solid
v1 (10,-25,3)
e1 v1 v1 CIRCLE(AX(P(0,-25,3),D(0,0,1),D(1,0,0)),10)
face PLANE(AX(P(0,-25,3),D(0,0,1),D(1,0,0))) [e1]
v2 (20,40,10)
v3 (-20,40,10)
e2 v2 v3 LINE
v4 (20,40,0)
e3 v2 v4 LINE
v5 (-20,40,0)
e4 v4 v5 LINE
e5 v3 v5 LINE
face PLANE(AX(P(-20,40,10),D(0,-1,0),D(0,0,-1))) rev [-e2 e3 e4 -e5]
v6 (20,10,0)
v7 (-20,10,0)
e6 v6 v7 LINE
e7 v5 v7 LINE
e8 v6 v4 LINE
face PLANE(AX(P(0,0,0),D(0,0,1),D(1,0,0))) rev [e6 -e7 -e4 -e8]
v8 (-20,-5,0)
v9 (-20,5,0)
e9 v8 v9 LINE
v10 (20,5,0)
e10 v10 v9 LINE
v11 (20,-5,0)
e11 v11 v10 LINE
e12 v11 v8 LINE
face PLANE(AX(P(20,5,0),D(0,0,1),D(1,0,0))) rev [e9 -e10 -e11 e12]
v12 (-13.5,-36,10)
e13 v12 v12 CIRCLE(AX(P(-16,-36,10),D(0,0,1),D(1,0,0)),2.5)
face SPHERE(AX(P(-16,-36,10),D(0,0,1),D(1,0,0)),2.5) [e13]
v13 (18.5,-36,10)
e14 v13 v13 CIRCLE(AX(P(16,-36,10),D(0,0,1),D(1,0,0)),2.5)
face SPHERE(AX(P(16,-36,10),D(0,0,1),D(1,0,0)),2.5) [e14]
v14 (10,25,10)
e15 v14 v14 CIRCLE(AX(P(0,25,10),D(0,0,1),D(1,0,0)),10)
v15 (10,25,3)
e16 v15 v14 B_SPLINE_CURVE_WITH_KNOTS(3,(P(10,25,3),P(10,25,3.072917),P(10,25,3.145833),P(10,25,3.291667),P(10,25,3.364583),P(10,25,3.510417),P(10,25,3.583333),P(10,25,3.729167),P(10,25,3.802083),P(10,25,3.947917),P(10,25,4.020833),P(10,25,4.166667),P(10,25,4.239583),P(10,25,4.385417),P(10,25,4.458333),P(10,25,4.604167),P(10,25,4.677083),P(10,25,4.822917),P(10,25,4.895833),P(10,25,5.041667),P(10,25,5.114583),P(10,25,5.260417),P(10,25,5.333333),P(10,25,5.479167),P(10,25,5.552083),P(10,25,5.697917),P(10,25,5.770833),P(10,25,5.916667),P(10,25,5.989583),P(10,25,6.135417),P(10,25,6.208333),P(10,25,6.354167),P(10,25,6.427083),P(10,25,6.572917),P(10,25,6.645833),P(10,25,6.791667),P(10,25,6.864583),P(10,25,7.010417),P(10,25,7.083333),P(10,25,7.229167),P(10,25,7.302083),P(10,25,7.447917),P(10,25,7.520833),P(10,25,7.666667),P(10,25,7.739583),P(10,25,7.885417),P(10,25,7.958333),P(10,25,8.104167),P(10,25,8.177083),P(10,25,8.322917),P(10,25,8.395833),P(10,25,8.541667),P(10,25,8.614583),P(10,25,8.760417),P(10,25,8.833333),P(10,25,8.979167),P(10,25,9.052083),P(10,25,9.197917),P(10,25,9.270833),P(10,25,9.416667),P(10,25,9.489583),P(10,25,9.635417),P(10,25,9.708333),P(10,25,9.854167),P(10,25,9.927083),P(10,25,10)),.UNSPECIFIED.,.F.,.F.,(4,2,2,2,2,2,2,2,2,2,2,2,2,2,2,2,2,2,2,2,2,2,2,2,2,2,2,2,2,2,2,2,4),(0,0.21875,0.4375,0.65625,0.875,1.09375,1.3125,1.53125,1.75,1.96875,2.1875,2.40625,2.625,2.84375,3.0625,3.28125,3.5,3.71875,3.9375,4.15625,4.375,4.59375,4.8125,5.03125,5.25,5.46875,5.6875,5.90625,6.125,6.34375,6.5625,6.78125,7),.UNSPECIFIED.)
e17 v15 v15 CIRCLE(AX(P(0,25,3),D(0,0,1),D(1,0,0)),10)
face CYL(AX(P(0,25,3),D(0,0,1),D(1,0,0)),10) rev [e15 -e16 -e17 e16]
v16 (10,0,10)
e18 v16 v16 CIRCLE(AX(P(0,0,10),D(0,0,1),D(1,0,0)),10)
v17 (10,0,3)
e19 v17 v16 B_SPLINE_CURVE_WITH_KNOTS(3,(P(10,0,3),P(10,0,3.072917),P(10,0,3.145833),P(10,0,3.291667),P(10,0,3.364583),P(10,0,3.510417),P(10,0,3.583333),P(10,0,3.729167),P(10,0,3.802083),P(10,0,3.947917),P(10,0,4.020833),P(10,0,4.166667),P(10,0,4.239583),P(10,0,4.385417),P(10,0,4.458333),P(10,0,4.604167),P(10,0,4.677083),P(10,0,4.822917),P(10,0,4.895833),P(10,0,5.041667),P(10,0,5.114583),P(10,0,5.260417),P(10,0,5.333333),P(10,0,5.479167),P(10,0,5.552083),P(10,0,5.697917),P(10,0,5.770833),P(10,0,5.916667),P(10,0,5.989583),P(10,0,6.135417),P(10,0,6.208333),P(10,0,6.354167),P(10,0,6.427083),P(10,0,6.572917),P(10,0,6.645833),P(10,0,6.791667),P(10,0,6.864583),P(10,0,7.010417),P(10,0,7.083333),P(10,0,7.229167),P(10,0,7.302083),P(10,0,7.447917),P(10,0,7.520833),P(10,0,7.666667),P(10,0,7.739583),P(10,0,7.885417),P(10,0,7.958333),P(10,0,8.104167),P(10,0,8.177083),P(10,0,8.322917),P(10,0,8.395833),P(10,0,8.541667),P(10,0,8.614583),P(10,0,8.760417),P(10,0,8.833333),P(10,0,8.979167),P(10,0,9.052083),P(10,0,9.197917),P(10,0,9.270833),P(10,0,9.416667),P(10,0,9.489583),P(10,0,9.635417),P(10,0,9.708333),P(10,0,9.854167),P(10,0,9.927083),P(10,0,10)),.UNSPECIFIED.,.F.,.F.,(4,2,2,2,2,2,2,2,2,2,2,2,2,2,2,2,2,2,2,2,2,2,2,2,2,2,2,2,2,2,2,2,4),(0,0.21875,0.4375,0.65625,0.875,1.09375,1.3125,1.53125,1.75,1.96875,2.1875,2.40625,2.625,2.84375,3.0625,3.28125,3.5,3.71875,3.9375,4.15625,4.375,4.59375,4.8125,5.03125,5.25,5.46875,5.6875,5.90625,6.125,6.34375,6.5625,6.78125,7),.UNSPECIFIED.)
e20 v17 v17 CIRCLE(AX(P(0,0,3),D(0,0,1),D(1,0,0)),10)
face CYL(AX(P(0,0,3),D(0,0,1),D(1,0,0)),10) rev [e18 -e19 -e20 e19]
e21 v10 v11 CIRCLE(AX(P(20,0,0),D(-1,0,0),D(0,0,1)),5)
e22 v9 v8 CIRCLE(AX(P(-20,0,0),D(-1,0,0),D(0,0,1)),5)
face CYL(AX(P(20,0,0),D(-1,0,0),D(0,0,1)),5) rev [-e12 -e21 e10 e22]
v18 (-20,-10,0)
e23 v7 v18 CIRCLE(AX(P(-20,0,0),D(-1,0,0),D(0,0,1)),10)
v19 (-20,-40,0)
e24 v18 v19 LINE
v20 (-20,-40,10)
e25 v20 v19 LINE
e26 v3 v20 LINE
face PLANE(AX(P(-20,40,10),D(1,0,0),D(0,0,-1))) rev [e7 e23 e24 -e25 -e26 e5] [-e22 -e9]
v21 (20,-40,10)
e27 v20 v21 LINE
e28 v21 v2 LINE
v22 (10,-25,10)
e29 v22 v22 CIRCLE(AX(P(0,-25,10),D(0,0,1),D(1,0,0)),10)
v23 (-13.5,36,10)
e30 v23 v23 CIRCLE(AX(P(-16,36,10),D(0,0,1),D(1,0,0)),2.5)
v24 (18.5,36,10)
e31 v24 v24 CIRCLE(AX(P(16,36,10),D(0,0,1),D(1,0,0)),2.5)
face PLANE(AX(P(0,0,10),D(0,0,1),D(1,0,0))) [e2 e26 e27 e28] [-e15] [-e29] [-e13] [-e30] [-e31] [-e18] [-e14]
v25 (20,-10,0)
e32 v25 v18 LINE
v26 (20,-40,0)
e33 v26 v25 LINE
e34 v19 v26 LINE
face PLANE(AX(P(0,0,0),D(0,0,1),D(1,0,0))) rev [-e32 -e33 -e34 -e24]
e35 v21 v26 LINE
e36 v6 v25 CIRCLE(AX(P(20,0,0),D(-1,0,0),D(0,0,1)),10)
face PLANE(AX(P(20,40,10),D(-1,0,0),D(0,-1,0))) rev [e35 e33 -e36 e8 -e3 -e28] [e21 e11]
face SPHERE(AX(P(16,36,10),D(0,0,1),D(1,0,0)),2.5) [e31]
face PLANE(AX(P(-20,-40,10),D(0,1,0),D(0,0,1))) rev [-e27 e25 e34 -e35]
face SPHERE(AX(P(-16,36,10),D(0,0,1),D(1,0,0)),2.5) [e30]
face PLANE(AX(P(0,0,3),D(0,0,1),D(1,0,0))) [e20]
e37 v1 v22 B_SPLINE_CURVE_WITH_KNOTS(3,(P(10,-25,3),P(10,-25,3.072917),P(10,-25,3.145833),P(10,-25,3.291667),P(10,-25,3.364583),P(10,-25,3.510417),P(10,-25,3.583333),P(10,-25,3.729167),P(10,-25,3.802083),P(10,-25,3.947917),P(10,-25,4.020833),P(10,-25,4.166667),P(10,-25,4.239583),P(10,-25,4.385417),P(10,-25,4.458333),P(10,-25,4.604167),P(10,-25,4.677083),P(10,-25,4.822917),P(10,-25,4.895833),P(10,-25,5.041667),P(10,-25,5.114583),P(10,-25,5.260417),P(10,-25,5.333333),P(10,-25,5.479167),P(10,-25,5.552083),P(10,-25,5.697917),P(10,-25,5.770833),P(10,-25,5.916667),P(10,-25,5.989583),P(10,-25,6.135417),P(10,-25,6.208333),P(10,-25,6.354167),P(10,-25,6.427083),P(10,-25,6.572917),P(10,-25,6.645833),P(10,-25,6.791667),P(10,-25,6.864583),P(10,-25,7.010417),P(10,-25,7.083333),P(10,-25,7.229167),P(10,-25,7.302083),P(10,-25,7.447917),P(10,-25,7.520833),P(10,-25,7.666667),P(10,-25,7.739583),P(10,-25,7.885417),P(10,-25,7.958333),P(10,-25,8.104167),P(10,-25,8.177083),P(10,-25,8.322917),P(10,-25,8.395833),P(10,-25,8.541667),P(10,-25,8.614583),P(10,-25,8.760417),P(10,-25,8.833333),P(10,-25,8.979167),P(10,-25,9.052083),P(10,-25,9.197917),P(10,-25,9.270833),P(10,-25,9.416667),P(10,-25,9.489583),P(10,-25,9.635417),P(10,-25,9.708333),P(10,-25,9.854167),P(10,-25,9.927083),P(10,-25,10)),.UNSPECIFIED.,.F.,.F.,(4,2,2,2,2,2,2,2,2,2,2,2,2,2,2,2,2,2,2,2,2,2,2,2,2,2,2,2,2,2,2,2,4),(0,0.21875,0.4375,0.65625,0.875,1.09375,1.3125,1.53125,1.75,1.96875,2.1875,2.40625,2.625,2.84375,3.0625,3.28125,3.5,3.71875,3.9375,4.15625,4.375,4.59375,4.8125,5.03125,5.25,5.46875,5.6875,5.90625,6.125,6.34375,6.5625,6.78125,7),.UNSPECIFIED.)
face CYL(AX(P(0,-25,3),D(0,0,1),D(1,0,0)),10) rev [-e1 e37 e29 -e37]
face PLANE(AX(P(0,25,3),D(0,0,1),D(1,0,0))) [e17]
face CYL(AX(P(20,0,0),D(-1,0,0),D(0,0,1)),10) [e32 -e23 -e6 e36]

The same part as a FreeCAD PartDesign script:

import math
import FreeCAD as App
import Part
import Sketcher

V = App.Vector

doc = App.newDocument("Part")
body = doc.addObject("PartDesign::Body", "Body")

sketch1 = body.newObject("Sketcher::SketchObject", "Sketch")
sketch1.AttachmentSupport = (doc.getObject("XY_Plane"), [""])
sketch1.MapMode = "FlatFace"
sketch1.addGeometry([
    Part.LineSegment(V(-20, 40, 0), V(-20, -40, 0)),
    Part.LineSegment(V(-20, -40, 0), V(20, -40, 0)),
    Part.LineSegment(V(20, -40, 0), V(20, 40, 0)),
    Part.LineSegment(V(20, 40, 0), V(-20, 40, 0)),
], False)
sketch1.addConstraint([
    Sketcher.Constraint("Coincident", 0, 2, 1, 1),
    Sketcher.Constraint("Coincident", 1, 2, 2, 1),
    Sketcher.Constraint("Coincident", 2, 2, 3, 1),
    Sketcher.Constraint("Coincident", 3, 2, 0, 1),
    Sketcher.Constraint("Vertical", 0),
    Sketcher.Constraint("Horizontal", 1),
    Sketcher.Constraint("Vertical", 2),
    Sketcher.Constraint("Horizontal", 3),
    Sketcher.Constraint("Symmetric", 0, 2, 2, 2, -1, 1),
    Sketcher.Constraint("DistanceX", 1, 1, 1, 2, 40.0),
    Sketcher.Constraint("DistanceY", 0, 2, 0, 1, 80.0),
])
pad1 = body.newObject("PartDesign::Pad", "Pad")
pad1.Profile = sketch1
pad1.Length = 10

sketch2 = body.newObject("Sketcher::SketchObject", "Sketch001")
sketch2.AttachmentSupport = (doc.getObject("XY_Plane"), [""])
sketch2.MapMode = "FlatFace"
sketch2.AttachmentOffset = App.Placement(V(0, 0, 10), App.Rotation())
sketch2.addGeometry([
    Part.Circle(V(0, 25, 0), V(0, 0, 1), 10),
    Part.Circle(V(0, 0, 0), V(0, 0, 1), 10),
    Part.Circle(V(0, -25, 0), V(0, 0, 1), 10),
], False)
sketch2.addConstraint([
    Sketcher.Constraint("Coincident", 1, 3, -1, 1),
    Sketcher.Constraint("Equal", 0, 1),
    Sketcher.Constraint("Equal", 1, 2),
    Sketcher.Constraint("Symmetric", 0, 3, 2, 3, -1, 1),
    Sketcher.Constraint("PointOnObject", 0, 3, -2),
    Sketcher.Constraint("Diameter", 0, 20.0),
    Sketcher.Constraint("DistanceY", -1, 1, 0, 3, 25.0),
])
pocket1 = body.newObject("PartDesign::Pocket", "Pocket")
pocket1.Profile = sketch2
pocket1.Length = 7

sketch3 = body.newObject("Sketcher::SketchObject", "Sketch002")
sketch3.AttachmentSupport = (doc.getObject("XY_Plane"), [""])
sketch3.MapMode = "FlatFace"
sketch3.AttachmentOffset = App.Placement(V(0, 0, 10), App.Rotation())
sketch3.addGeometry([
    Part.LineSegment(V(16, 33.5, 0), V(16, 38.5, 0)),
    Part.ArcOfCircle(Part.Circle(V(16, 36, 0), V(0, 0, 1), 2.5), math.radians(90), math.radians(270)),
], False)
sketch3.addGeometry(Part.LineSegment(V(16, 38.5, 0), V(16, 33.5, 0)), True)
sketch3.addConstraint([
    Sketcher.Constraint("Coincident", 0, 1, 1, 2),
    Sketcher.Constraint("Coincident", 1, 1, 0, 2),
    Sketcher.Constraint("Vertical", 0),
    Sketcher.Constraint("Vertical", 2),
    Sketcher.Constraint("Coincident", 2, 1, 1, 1),
    Sketcher.Constraint("Vertical", 1, 3, 0, 1),
    Sketcher.Constraint("Equal", 0, 2),
    Sketcher.Constraint("Radius", 1, 2.5),
    Sketcher.Constraint("DistanceX", -1, 1, 1, 3, 16.0),
    Sketcher.Constraint("DistanceY", -1, 1, 1, 3, 36.0),
])
revolution = body.newObject("PartDesign::Revolution", "Revolution")
revolution.Profile = sketch3
revolution.ReferenceAxis = (sketch3, ["Axis0"])
revolution.Angle = 360

sketch4 = body.newObject("Sketcher::SketchObject", "Sketch003")
sketch4.AttachmentSupport = (doc.getObject("XY_Plane"), [""])
sketch4.MapMode = "FlatFace"
sketch4.AttachmentOffset = App.Placement(V(0, 0, 10), App.Rotation())
sketch4.addGeometry([
    Part.LineSegment(V(-16, -38.5, 0), V(-16, -33.5, 0)),
    Part.ArcOfCircle(Part.Circle(V(-16, -36, 0), V(0, 0, 1), 2.5), math.radians(90), math.radians(270)),
    Part.LineSegment(V(-16, 33.5, 0), V(-16, 38.5, 0)),
    Part.ArcOfCircle(Part.Circle(V(-16, 36, 0), V(0, 0, 1), 2.5), math.radians(90), math.radians(270)),
], False)
sketch4.addGeometry(Part.LineSegment(V(-16, 38.5, 0), V(-16, -38.5, 0)), True)
sketch4.addConstraint([
    Sketcher.Constraint("Coincident", 0, 1, 1, 2),
    Sketcher.Constraint("Coincident", 1, 1, 0, 2),
    Sketcher.Constraint("Coincident", 2, 1, 3, 2),
    Sketcher.Constraint("Coincident", 3, 1, 2, 2),
    Sketcher.Constraint("Vertical", 0),
    Sketcher.Constraint("Vertical", 2),
    Sketcher.Constraint("Vertical", 4),
    Sketcher.Constraint("Coincident", 4, 1, 3, 1),
    Sketcher.Constraint("Coincident", 4, 2, 0, 1),
    Sketcher.Constraint("Equal", 1, 3),
    Sketcher.Constraint("Symmetric", 1, 3, 3, 3, -1),
    Sketcher.Constraint("Vertical", 3, 3, 0, 1),
    Sketcher.Constraint("Radius", 1, 2.5),
    Sketcher.Constraint("DistanceY", 4, 2, 4, 1, 77.0),
    Sketcher.Constraint("DistanceX", 1, 3, -1, 1, 16.0),
])
revolution2 = body.newObject("PartDesign::Revolution", "Revolution001")
revolution2.Profile = sketch4
revolution2.ReferenceAxis = (sketch4, ["Axis0"])
revolution2.Angle = 360

sketch5 = body.newObject("Sketcher::SketchObject", "Sketch004")
sketch5.AttachmentSupport = (doc.getObject("XY_Plane"), [""])
sketch5.MapMode = "FlatFace"
sketch5.AttachmentOffset = App.Placement(V(0, 0, 10), App.Rotation())
sketch5.addGeometry([
    Part.LineSegment(V(16, -38.5, 0), V(16, -33.5, 0)),
    Part.ArcOfCircle(Part.Circle(V(16, -36, 0), V(0, 0, 1), 2.5), math.radians(90), math.radians(270)),
], False)
sketch5.addGeometry(Part.LineSegment(V(16, -33.5, 0), V(16, -38.5, 0)), True)
sketch5.addConstraint([
    Sketcher.Constraint("Coincident", 0, 1, 1, 2),
    Sketcher.Constraint("Coincident", 1, 1, 0, 2),
    Sketcher.Constraint("Vertical", 0),
    Sketcher.Constraint("Vertical", 2),
    Sketcher.Constraint("Coincident", 2, 1, 1, 1),
    Sketcher.Constraint("Vertical", 1, 3, 0, 1),
    Sketcher.Constraint("Equal", 0, 2),
    Sketcher.Constraint("Radius", 1, 2.5),
    Sketcher.Constraint("DistanceX", -1, 1, 1, 3, 16.0),
    Sketcher.Constraint("DistanceY", 1, 3, -1, 1, 36.0),
])
revolution3 = body.newObject("PartDesign::Revolution", "Revolution002")
revolution3.Profile = sketch5
revolution3.ReferenceAxis = (sketch5, ["Axis0"])
revolution3.Angle = 360

sketch6 = body.newObject("Sketcher::SketchObject", "Sketch005")
sketch6.AttachmentSupport = (doc.getObject("YZ_Plane"), [""])
sketch6.MapMode = "FlatFace"
sketch6.AttachmentOffset = App.Placement(V(0, 0, -20), App.Rotation())
sketch6.addGeometry([
    Part.LineSegment(V(-10, 0, 0), V(10, 0, 0)),
    Part.ArcOfCircle(Part.Circle(V(0, 0, 0), V(0, 0, 1), 10), math.radians(180), math.radians(360)),
], False)
sketch6.addConstraint([
    Sketcher.Constraint("Coincident", 0, 1, 1, 1),
    Sketcher.Constraint("Coincident", 1, 2, 0, 2),
    Sketcher.Constraint("Horizontal", 0),
    Sketcher.Constraint("Coincident", 1, 3, -1, 1),
    Sketcher.Constraint("PointOnObject", 0, 1, -1),
    Sketcher.Constraint("Radius", 1, 10.0),
])
pad2 = body.newObject("PartDesign::Pad", "Pad001")
pad2.Profile = sketch6
pad2.Length = 40

sketch7 = body.newObject("Sketcher::SketchObject", "Sketch006")
sketch7.AttachmentSupport = (doc.getObject("YZ_Plane"), [""])
sketch7.MapMode = "FlatFace"
sketch7.AttachmentOffset = App.Placement(V(0, 0, -20), App.Rotation())
sketch7.addGeometry([
    Part.LineSegment(V(-5, 0, 0), V(5, 0, 0)),
    Part.ArcOfCircle(Part.Circle(V(0, 0, 0), V(0, 0, 1), 5), math.radians(180), math.radians(360)),
], False)
sketch7.addConstraint([
    Sketcher.Constraint("Coincident", 0, 1, 1, 1),
    Sketcher.Constraint("Coincident", 1, 2, 0, 2),
    Sketcher.Constraint("Horizontal", 0),
    Sketcher.Constraint("Coincident", 1, 3, -1, 1),
    Sketcher.Constraint("PointOnObject", 0, 1, -1),
    Sketcher.Constraint("Radius", 1, 5.0),
])
pocket2 = body.newObject("PartDesign::Pocket", "Pocket001")
pocket2.Profile = sketch7
pocket2.Length = 40
pocket2.Reversed = True

doc.recompute()
